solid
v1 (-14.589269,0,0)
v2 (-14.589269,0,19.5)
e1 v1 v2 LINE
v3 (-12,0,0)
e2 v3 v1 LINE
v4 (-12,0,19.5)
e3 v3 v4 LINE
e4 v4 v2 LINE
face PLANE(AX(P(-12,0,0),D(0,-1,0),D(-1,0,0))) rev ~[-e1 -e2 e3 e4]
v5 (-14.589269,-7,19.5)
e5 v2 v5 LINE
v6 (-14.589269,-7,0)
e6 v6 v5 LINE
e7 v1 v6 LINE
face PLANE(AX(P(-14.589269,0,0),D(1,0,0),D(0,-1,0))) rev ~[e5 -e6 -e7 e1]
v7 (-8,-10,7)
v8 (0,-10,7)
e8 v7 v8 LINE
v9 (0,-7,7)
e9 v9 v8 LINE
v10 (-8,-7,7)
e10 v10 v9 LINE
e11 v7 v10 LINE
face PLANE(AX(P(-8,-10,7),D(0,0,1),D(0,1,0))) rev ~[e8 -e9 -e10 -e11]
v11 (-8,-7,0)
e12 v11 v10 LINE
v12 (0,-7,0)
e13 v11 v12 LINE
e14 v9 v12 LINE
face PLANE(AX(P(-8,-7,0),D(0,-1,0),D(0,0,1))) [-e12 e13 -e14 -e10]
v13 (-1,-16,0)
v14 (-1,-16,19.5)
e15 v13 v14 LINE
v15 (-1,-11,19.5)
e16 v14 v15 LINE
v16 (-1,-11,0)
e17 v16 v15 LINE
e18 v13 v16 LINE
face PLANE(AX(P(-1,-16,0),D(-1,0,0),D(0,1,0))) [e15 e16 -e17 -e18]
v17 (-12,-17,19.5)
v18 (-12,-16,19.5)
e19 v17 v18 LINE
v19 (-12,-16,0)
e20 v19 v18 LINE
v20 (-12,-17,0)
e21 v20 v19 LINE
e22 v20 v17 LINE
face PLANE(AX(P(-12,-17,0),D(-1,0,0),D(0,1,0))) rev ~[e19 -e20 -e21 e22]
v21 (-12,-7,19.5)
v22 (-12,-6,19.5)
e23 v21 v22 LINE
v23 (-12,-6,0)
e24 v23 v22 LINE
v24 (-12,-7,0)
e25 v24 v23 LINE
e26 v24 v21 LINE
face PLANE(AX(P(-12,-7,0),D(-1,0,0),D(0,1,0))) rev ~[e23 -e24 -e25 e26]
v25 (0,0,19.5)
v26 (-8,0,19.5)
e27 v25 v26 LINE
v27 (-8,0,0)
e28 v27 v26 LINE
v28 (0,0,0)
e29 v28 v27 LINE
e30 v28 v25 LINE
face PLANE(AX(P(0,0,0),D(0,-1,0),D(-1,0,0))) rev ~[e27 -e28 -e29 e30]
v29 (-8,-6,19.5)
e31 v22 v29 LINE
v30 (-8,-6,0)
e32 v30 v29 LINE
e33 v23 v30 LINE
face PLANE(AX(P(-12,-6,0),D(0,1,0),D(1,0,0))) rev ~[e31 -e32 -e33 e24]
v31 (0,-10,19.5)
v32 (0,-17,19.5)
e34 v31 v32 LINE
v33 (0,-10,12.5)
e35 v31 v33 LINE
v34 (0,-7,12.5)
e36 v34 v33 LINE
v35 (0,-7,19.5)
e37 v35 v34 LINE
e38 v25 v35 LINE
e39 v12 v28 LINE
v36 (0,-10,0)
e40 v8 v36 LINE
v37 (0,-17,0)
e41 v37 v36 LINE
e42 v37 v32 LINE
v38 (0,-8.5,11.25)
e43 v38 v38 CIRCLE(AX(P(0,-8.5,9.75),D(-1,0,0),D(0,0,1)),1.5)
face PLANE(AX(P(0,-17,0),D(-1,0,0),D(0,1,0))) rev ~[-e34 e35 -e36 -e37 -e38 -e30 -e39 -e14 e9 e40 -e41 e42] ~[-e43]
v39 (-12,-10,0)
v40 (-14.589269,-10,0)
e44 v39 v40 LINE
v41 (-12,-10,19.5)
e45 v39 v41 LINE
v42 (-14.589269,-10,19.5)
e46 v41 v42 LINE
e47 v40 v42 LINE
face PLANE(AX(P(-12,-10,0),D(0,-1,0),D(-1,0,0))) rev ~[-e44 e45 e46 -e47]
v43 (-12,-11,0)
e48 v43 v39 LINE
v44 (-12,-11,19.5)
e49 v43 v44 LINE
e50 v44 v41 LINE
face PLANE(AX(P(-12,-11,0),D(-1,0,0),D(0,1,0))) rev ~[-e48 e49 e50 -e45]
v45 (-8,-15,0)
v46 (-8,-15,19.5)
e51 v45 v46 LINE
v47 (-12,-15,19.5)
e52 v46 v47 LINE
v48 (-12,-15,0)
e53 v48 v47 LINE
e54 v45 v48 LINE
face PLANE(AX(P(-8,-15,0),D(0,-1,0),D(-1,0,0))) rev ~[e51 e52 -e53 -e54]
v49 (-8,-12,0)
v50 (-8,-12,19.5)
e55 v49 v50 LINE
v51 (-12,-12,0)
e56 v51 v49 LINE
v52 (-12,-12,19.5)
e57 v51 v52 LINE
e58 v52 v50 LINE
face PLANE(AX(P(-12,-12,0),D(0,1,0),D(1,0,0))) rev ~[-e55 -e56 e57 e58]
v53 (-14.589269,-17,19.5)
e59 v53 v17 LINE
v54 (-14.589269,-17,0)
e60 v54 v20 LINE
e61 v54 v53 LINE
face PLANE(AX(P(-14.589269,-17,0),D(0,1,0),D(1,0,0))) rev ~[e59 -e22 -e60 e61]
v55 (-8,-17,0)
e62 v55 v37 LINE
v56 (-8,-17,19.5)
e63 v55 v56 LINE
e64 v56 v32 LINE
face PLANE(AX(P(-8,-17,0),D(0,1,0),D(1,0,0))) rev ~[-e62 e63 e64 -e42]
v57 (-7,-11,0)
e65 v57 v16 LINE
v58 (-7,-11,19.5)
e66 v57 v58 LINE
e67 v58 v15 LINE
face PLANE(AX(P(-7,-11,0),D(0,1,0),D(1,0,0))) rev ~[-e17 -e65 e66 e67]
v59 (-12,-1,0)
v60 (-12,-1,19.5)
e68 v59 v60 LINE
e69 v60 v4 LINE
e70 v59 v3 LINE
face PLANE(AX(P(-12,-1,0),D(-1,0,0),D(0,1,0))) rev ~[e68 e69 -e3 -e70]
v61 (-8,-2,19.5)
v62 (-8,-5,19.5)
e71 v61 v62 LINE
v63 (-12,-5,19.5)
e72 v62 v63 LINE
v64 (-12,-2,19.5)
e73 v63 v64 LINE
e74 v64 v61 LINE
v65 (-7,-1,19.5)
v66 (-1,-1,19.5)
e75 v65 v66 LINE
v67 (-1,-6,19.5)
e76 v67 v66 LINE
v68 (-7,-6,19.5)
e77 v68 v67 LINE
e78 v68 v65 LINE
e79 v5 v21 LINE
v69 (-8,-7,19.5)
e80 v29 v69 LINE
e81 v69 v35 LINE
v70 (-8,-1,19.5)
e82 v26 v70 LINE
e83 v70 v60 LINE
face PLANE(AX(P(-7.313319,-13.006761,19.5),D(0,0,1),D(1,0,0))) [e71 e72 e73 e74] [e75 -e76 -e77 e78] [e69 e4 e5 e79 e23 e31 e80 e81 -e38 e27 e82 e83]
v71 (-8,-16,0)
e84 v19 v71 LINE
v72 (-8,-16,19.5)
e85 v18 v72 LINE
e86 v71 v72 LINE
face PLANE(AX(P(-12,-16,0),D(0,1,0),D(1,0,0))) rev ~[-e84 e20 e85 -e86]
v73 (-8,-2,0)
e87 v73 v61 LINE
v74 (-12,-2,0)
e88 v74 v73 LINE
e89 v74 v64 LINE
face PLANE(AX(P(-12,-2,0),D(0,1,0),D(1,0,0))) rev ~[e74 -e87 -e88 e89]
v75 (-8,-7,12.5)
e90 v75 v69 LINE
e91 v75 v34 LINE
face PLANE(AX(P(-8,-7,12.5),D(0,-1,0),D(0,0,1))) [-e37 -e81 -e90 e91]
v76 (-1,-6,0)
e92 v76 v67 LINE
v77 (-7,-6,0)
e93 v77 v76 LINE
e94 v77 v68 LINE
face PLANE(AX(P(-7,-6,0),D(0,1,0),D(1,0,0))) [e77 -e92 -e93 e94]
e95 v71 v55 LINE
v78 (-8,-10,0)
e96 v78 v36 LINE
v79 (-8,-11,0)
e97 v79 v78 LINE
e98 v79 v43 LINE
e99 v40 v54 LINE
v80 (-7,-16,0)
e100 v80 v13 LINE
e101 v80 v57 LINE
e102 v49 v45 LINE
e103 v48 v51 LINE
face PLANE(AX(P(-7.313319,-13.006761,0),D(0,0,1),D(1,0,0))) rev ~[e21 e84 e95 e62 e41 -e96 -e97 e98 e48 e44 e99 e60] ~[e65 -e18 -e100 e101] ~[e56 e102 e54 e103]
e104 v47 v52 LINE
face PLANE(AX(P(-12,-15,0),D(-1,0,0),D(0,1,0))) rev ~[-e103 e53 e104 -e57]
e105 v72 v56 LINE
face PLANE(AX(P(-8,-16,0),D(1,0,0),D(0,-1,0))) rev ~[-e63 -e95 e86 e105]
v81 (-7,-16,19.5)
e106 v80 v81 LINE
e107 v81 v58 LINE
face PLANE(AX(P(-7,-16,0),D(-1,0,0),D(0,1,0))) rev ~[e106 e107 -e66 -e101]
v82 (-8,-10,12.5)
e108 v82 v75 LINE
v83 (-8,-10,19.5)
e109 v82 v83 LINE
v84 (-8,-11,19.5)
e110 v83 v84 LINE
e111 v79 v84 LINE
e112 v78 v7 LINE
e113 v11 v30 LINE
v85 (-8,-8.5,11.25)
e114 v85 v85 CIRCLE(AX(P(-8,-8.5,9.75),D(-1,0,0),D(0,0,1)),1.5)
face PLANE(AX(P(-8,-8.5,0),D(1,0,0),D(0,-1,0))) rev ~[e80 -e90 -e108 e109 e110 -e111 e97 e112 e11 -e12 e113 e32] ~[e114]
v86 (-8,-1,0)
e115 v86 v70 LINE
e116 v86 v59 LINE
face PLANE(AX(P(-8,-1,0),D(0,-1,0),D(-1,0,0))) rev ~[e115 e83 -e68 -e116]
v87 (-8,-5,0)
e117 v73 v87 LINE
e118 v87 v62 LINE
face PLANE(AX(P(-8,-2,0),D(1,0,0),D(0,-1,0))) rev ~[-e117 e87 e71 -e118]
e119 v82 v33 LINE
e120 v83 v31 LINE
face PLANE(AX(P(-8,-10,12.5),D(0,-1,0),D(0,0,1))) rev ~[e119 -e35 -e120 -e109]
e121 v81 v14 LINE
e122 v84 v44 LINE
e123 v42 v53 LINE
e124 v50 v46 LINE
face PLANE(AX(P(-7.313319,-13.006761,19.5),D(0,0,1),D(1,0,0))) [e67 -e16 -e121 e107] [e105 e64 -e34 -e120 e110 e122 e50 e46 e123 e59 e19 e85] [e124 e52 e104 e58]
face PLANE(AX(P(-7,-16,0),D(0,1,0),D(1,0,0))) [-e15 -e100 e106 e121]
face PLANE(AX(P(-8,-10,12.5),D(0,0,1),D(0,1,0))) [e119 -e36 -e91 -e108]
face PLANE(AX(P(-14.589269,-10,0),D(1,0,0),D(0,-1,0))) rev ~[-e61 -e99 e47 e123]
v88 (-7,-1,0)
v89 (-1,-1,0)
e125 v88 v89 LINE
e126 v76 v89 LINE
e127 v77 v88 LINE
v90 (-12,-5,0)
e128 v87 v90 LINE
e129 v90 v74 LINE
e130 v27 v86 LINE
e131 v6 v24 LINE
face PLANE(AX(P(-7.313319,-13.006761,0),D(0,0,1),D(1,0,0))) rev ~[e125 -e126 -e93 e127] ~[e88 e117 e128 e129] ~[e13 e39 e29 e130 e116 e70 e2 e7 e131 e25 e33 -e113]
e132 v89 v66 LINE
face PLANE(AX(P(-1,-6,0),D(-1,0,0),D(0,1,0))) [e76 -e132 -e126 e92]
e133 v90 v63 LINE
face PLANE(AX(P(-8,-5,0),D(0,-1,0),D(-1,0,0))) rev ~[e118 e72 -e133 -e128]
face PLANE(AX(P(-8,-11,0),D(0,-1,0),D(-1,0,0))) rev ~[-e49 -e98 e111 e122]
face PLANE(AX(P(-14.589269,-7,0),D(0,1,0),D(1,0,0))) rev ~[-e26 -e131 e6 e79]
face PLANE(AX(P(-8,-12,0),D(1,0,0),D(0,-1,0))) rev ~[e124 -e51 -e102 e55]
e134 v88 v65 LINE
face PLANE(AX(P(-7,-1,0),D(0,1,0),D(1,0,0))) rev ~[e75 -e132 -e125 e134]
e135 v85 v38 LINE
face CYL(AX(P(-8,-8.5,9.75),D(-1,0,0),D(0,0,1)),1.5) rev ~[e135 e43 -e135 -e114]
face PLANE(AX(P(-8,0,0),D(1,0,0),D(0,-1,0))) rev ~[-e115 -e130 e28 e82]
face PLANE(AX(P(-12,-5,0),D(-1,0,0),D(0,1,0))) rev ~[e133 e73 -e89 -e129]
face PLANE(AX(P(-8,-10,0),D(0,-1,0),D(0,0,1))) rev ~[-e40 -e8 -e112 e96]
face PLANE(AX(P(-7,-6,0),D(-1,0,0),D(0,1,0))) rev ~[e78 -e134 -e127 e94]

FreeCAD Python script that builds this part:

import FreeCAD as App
import Part
import Sketcher

V = App.Vector
Q = App.Units.Quantity


def add_polygon(sketch, points):
    """Adds a closed chain of lines whose ends are joined by coincident constraints."""
    first, n = sketch.GeometryCount, len(points)
    for a, b in zip(points, points[1:] + points[:1]):
        sketch.addGeometry(Part.LineSegment(App.Vector(*a, 0), App.Vector(*b, 0)), False)
    for i in range(n):
        sketch.addConstraint(Sketcher.Constraint("Coincident", first + i, 2, first + (i + 1) % n, 1))

doc = App.newDocument("Part")
body = doc.addObject("PartDesign::Body", "Body")

sketch1 = body.newObject("Sketcher::SketchObject", "Sketch")
sketch1.AttachmentSupport = (doc.getObject("XY_Plane"), [""])
sketch1.MapMode = "FlatFace"
add_polygon(sketch1, [(0, 0), (-8, 0), (-8, -1), (-12, -1), (-12, 0), (-14.6, 0), (-14.6, -7), (-12, -7), (-12, -6), (-8, -6), (-8, -11), (-12, -11), (-12, -10), (-14.6, -10), (-14.6, -17), (-12, -17), (-12, -16), (-8, -16), (-8, -17), (0, -17)])
add_polygon(sketch1, [(-12, -2), (-8, -2), (-8, -5), (-12, -5)])
add_polygon(sketch1, [(-1, -6), (-7, -6), (-7, -1), (-1, -1)])
add_polygon(sketch1, [(-7, -16), (-7, -11), (-1, -11), (-1, -16)])
add_polygon(sketch1, [(-12, -15), (-12, -12), (-8, -12), (-8, -15)])
sketch1.addConstraint([
    Sketcher.Constraint("Horizontal", 0),
    Sketcher.Constraint("Vertical", 1),
    Sketcher.Constraint("Horizontal", 2),
    Sketcher.Constraint("Vertical", 3),
    Sketcher.Constraint("Horizontal", 4),
    Sketcher.Constraint("Vertical", 5),
    Sketcher.Constraint("Horizontal", 6),
    Sketcher.Constraint("Vertical", 7),
    Sketcher.Constraint("Horizontal", 8),
    Sketcher.Constraint("Vertical", 9),
    Sketcher.Constraint("Horizontal", 10),
    Sketcher.Constraint("Vertical", 11),
    Sketcher.Constraint("Horizontal", 12),
    Sketcher.Constraint("Vertical", 13),
    Sketcher.Constraint("Horizontal", 14),
    Sketcher.Constraint("Vertical", 15),
    Sketcher.Constraint("Horizontal", 16),
    Sketcher.Constraint("Vertical", 17),
    Sketcher.Constraint("Horizontal", 18),
    Sketcher.Constraint("Vertical", 19),
    Sketcher.Constraint("Horizontal", 20),
    Sketcher.Constraint("Vertical", 21),
    Sketcher.Constraint("Horizontal", 22),
    Sketcher.Constraint("Vertical", 23),
    Sketcher.Constraint("Horizontal", 24),
    Sketcher.Constraint("Vertical", 25),
    Sketcher.Constraint("Horizontal", 26),
    Sketcher.Constraint("Vertical", 27),
    Sketcher.Constraint("Vertical", 28),
    Sketcher.Constraint("Horizontal", 29),
    Sketcher.Constraint("Vertical", 30),
    Sketcher.Constraint("Horizontal", 31),
    Sketcher.Constraint("Vertical", 32),
    Sketcher.Constraint("Horizontal", 33),
    Sketcher.Constraint("Vertical", 34),
    Sketcher.Constraint("Horizontal", 35),
    Sketcher.Constraint("Coincident", 19, 2, -1, 1),
    Sketcher.Constraint("PointOnObject", 3, 2, -1),
    Sketcher.Constraint("Horizontal", 14, 2, 17, 2),
    Sketcher.Constraint("Horizontal", 8, 2, 24, 2),
    Sketcher.Constraint("Horizontal", 2, 2, 25, 2),
    Sketcher.Constraint("Horizontal", 10, 2, 28, 2),
    Sketcher.Constraint("Horizontal", 16, 2, 30, 2),
    Sketcher.Constraint("Vertical", 3, 2, 6, 2),
    Sketcher.Constraint("Vertical", 1, 2, 8, 2),
    Sketcher.Constraint("Vertical", 7, 2, 10, 2),
    Sketcher.Constraint("Vertical", 5, 2, 12, 2),
    Sketcher.Constraint("Vertical", 11, 2, 14, 2),
    Sketcher.Constraint("Vertical", 9, 2, 16, 2),
    Sketcher.Constraint("Vertical", 17, 2, 20, 2),
    Sketcher.Constraint("Vertical", 15, 2, 22, 2),
    Sketcher.Constraint("Vertical", 25, 2, 28, 2),
    Sketcher.Constraint("Vertical", 27, 2, 29, 2),
    Sketcher.Constraint("Vertical", 23, 2, 32, 2),
    Sketcher.Constraint("Vertical", 21, 2, 33, 2),
    Sketcher.Constraint("Equal", 3, 7),
    Sketcher.Constraint("Equal", 7, 11),
    Sketcher.Constraint("Equal", 5, 13),
    Sketcher.Constraint("Equal", 11, 15),
    Sketcher.Constraint("Equal", 9, 25),
    Sketcher.Constraint("Equal", 23, 32),
    Sketcher.Constraint("DistanceX", 0, 2, 0, 1, Q("8 mm")),
    Sketcher.Constraint("DistanceX", 2, 2, 2, 1, Q("4 mm")),
    Sketcher.Constraint("DistanceX", 24, 2, 24, 1, Q("6 mm")),
    Sketcher.Constraint("DistanceY", 1, 2, 1, 1, Q("1 mm")),
    Sketcher.Constraint("DistanceY", 5, 2, 5, 1, Q("7 mm")),
    Sketcher.Constraint("DistanceY", 21, 2, 21, 1, Q("3 mm")),
    Sketcher.Constraint("DistanceY", 20, 2, -1, 1, Q("2 mm")),
    Sketcher.Constraint("DistanceX", 24, 2, -1, 1, Q("7 mm")),
    Sketcher.Constraint("DistanceY", 32, 2, -1, 1, Q("12 mm")),
    Sketcher.Constraint("DistanceX", 4, 2, 4, 1, Q("2.589269 mm")),
])
pad1 = body.newObject("PartDesign::Pad", "Pad")
pad1.Profile = sketch1
pad1.Length = 19.5

sketch2 = body.newObject("Sketcher::SketchObject", "Sketch001")
sketch2.AttachmentSupport = (doc.getObject("YZ_Plane"), [""])
sketch2.MapMode = "FlatFace"
sketch2.AttachmentOffset = App.Placement(V(0, 0, -8), App.Rotation())
sketch2.addGeometry(Part.Circle(V(-8.5, 9.8, 0), V(0, 0, 1), 1.5), False)
sketch2.addConstraint([
    Sketcher.Constraint("Diameter", 0, Q("3 mm")),
    Sketcher.Constraint("DistanceX", 0, 3, -1, 1, Q("8.5 mm")),
    Sketcher.Constraint("DistanceY", -1, 1, 0, 3, Q("9.75 mm")),
])
pocket1 = body.newObject("PartDesign::Pocket", "Pocket")
pocket1.Profile = sketch2
pocket1.Type = "UpToFirst"
pocket1.Reversed = True

sketch3 = body.newObject("Sketcher::SketchObject", "Sketch002")
sketch3.AttachmentSupport = (doc.getObject("YZ_Plane"), [""])
sketch3.MapMode = "FlatFace"
sketch3.AttachmentOffset = App.Placement(V(0, 0, -8), App.Rotation())
add_polygon(sketch3, [(-7, 0), (-10, 0), (-10, 7), (-7, 7)])
sketch3.addConstraint([
    Sketcher.Constraint("Horizontal", 0),
    Sketcher.Constraint("Vertical", 1),
    Sketcher.Constraint("Horizontal", 2),
    Sketcher.Constraint("Vertical", 3),
    Sketcher.Constraint("PointOnObject", 0, 2, -1),
    Sketcher.Constraint("DistanceX", 0, 2, 0, 1, Q("3 mm")),
    Sketcher.Constraint("DistanceY", 1, 1, 1, 2, Q("7 mm")),
    Sketcher.Constraint("DistanceX", 0, 2, -1, 1, Q("10 mm")),
])
pocket2 = body.newObject("PartDesign::Pocket", "Pocket001")
pocket2.Profile = sketch3
pocket2.Type = "UpToFirst"
pocket2.Reversed = True

sketch4 = body.newObject("Sketcher::SketchObject", "Sketch003")
sketch4.AttachmentSupport = (doc.getObject("YZ_Plane"), [""])
sketch4.MapMode = "FlatFace"
sketch4.AttachmentOffset = App.Placement(V(0, 0, -8), App.Rotation())
add_polygon(sketch4, [(-7, 12.5), (-10, 12.5), (-10, 19.5), (-7, 19.5)])
sketch4.addConstraint([
    Sketcher.Constraint("Horizontal", 0),
    Sketcher.Constraint("Vertical", 1),
    Sketcher.Constraint("Horizontal", 2),
    Sketcher.Constraint("Vertical", 3),
    Sketcher.Constraint("DistanceX", 0, 2, 0, 1, Q("3 mm")),
    Sketcher.Constraint("DistanceY", 1, 1, 1, 2, Q("7 mm")),
    Sketcher.Constraint("DistanceX", 0, 2, -1, 1, Q("10 mm")),
    Sketcher.Constraint("DistanceY", -1, 1, 0, 2, Q("12.5 mm")),
])
pocket3 = body.newObject("PartDesign::Pocket", "Pocket002")
pocket3.Profile = sketch4
pocket3.Type = "UpToFirst"
pocket3.Reversed = True

doc.recompute()
